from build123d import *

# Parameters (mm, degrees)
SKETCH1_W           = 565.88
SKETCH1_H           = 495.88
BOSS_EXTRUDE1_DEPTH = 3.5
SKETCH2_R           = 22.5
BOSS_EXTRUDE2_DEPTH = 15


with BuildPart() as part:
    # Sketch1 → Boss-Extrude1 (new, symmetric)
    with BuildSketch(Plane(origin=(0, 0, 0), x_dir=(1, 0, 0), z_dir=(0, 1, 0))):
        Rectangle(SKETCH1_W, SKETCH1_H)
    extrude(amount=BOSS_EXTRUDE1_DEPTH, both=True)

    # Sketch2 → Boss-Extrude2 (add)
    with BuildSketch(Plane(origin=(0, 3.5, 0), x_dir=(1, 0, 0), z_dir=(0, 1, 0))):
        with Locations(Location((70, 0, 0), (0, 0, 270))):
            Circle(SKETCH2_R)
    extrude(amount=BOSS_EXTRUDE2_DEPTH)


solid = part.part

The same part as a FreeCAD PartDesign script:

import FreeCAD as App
import Part
import Sketcher
Q = App.Units.Quantity


def add_polygon(sketch, points):
    """Adds a closed chain of lines whose ends are joined by coincident constraints."""
    first, n = sketch.GeometryCount, len(points)
    for a, b in zip(points, points[1:] + points[:1]):
        sketch.addGeometry(Part.LineSegment(App.Vector(*a, 0), App.Vector(*b, 0)), False)
    for i in range(n):
        sketch.addConstraint(Sketcher.Constraint("Coincident", first + i, 2, first + (i + 1) % n, 1))

doc = App.newDocument("Part")
body = doc.addObject("PartDesign::Body", "Body")

# Sketch on XZ plane
sketch1 = body.newObject("Sketcher::SketchObject", "Sketch")
sketch1.AttachmentSupport = (doc.getObject("XZ_Plane"), [""])
sketch1.MapMode = "FlatFace"
add_polygon(sketch1, [(-282.94, -247.94), (-282.94, 247.94), (282.94, 247.94), (282.94, -247.94)])  # lines 0-3
sketch1.addConstraint(Sketcher.Constraint("Vertical", 0))
sketch1.addConstraint(Sketcher.Constraint("Horizontal", 1))
sketch1.addConstraint(Sketcher.Constraint("Vertical", 2))
sketch1.addConstraint(Sketcher.Constraint("Horizontal", 3))
sketch1.addConstraint(Sketcher.Constraint("Symmetric", 0, 2, 2, 2, -1, 1))
sketch1.addConstraint(Sketcher.Constraint("DistanceX", 1, 1, 1, 2, Q("565.88 mm")))
sketch1.addConstraint(Sketcher.Constraint("DistanceY", 0, 1, 0, 2, Q("495.88 mm")))
pad1 = body.newObject("PartDesign::Pad", "Pad")
pad1.Profile = sketch1
pad1.Length = 7
pad1.Midplane = True

# Sketch on XZ plane
sketch2 = body.newObject("Sketcher::SketchObject", "Sketch001")
sketch2.AttachmentSupport = (doc.getObject("XZ_Plane"), [""])
sketch2.MapMode = "FlatFace"
sketch2.AttachmentOffset = App.Placement(App.Vector(0, 0, -3.5), App.Rotation())
sketch2.addGeometry(Part.Circle(App.Vector(70, 0, 0), App.Vector(0, 0, 1), 22.5), False)
sketch2.addConstraint(Sketcher.Constraint("PointOnObject", 0, 3, -1))
sketch2.addConstraint(Sketcher.Constraint("Diameter", 0, Q("45 mm")))
sketch2.addConstraint(Sketcher.Constraint("DistanceX", -1, 1, 0, 3, Q("70 mm")))
pad2 = body.newObject("PartDesign::Pad", "Pad001")
pad2.Profile = sketch2
pad2.Length = 15
pad2.Reversed = True

doc.recompute()
